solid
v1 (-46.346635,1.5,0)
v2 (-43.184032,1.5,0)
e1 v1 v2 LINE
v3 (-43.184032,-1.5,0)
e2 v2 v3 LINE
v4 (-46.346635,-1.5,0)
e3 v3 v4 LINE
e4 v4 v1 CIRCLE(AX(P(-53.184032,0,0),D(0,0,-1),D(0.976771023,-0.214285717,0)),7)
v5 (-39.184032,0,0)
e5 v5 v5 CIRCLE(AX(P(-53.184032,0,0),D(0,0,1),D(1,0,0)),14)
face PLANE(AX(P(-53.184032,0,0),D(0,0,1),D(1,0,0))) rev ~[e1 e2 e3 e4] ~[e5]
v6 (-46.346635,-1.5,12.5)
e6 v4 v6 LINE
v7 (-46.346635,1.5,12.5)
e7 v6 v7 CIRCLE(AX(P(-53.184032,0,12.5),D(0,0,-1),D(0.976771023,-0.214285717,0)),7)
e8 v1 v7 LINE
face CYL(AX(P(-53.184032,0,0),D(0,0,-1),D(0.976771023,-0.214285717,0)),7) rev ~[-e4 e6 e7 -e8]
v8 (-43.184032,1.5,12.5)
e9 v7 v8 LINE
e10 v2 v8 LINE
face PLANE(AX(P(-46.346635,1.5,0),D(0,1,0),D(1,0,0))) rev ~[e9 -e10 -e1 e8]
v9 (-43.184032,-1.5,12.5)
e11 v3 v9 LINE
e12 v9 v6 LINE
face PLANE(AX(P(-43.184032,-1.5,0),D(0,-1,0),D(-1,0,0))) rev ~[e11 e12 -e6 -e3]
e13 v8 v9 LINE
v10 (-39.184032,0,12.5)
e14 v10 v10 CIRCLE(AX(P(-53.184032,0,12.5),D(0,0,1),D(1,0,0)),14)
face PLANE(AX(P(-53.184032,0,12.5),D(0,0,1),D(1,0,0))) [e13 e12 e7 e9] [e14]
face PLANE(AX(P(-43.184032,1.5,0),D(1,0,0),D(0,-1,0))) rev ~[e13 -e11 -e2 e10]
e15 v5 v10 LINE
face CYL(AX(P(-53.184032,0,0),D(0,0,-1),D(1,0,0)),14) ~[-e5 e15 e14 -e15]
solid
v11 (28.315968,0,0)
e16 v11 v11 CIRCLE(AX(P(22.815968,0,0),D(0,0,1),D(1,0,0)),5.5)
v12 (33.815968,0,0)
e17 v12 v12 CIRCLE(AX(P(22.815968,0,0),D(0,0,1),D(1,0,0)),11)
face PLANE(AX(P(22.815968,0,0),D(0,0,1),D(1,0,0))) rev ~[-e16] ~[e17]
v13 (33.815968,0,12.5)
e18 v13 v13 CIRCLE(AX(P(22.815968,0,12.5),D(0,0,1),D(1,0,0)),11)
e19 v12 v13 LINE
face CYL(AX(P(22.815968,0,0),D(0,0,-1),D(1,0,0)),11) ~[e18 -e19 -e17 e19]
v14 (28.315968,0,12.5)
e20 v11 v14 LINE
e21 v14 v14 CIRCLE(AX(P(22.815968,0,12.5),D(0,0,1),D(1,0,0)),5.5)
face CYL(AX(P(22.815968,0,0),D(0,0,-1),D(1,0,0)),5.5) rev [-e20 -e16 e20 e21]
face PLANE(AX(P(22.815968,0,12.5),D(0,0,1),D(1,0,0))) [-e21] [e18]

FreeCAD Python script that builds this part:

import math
import FreeCAD as App
import Part
import Sketcher

V = App.Vector
Q = App.Units.Quantity

doc = App.newDocument("Part")
body = doc.addObject("PartDesign::Body", "Body")
body.AllowCompound = True

# Sketch on XY plane
sketch1 = body.newObject("Sketcher::SketchObject", "Sketch")
sketch1.AttachmentSupport = (doc.getObject("XY_Plane"), [""])
sketch1.MapMode = "FlatFace"
sketch1.addGeometry(Part.Circle(V(-53.2, 0, 0), V(0, 0, 1), 14), False)
sketch1.addGeometry(Part.LineSegment(V(-43.2, -1.5, 0), V(-46.3, -1.5, 0)), False)
sketch1.addGeometry(Part.ArcOfCircle(Part.Circle(V(-53.2, 0, 0), V(0, 0, 1), 7), math.radians(12), math.radians(348)), False)
sketch1.addGeometry(Part.LineSegment(V(-46.3, 1.5, 0), V(-43.2, 1.5, 0)), False)
sketch1.addGeometry(Part.LineSegment(V(-43.2, 1.5, 0), V(-43.2, -1.5, 0)), False)
sketch1.addGeometry(Part.Circle(V(22.8, 0, 0), V(0, 0, 1), 11), False)
sketch1.addGeometry(Part.Circle(V(22.8, 0, 0), V(0, 0, 1), 5.5), False)
sketch1.addConstraint(Sketcher.Constraint("Coincident", 1, 2, 2, 2))
sketch1.addConstraint(Sketcher.Constraint("Coincident", 2, 1, 3, 1))
sketch1.addConstraint(Sketcher.Constraint("Coincident", 3, 2, 4, 1))
sketch1.addConstraint(Sketcher.Constraint("Coincident", 4, 2, 1, 1))
sketch1.addConstraint(Sketcher.Constraint("Horizontal", 1))
sketch1.addConstraint(Sketcher.Constraint("Horizontal", 3))
sketch1.addConstraint(Sketcher.Constraint("Vertical", 4))
sketch1.addConstraint(Sketcher.Constraint("Coincident", 2, 3, 0, 3))
sketch1.addConstraint(Sketcher.Constraint("Coincident", 6, 3, 5, 3))
sketch1.addConstraint(Sketcher.Constraint("Symmetric", 1, 2, 2, 1, -1))
sketch1.addConstraint(Sketcher.Constraint("PointOnObject", 5, 3, -1))
sketch1.addConstraint(Sketcher.Constraint("Diameter", 0, Q("28 mm")))
sketch1.addConstraint(Sketcher.Constraint("Diameter", 5, Q("22 mm")))
sketch1.addConstraint(Sketcher.Constraint("Diameter", 6, Q("11 mm")))
sketch1.addConstraint(Sketcher.Constraint("Radius", 2, Q("7 mm")))
sketch1.addConstraint(Sketcher.Constraint("DistanceY", 4, 2, 4, 1, Q("3 mm")))
sketch1.addConstraint(Sketcher.Constraint("DistanceX", 0, 3, 5, 3, Q("76 mm")))
sketch1.addConstraint(Sketcher.Constraint("DistanceX", 0, 3, 3, 2, Q("10 mm")))
sketch1.addConstraint(Sketcher.Constraint("DistanceX", -1, 1, 5, 3, Q("22.815968 mm")))
pad1 = body.newObject("PartDesign::Pad", "Pad")
pad1.Profile = sketch1
pad1.Length = 12.5

doc.recompute()
